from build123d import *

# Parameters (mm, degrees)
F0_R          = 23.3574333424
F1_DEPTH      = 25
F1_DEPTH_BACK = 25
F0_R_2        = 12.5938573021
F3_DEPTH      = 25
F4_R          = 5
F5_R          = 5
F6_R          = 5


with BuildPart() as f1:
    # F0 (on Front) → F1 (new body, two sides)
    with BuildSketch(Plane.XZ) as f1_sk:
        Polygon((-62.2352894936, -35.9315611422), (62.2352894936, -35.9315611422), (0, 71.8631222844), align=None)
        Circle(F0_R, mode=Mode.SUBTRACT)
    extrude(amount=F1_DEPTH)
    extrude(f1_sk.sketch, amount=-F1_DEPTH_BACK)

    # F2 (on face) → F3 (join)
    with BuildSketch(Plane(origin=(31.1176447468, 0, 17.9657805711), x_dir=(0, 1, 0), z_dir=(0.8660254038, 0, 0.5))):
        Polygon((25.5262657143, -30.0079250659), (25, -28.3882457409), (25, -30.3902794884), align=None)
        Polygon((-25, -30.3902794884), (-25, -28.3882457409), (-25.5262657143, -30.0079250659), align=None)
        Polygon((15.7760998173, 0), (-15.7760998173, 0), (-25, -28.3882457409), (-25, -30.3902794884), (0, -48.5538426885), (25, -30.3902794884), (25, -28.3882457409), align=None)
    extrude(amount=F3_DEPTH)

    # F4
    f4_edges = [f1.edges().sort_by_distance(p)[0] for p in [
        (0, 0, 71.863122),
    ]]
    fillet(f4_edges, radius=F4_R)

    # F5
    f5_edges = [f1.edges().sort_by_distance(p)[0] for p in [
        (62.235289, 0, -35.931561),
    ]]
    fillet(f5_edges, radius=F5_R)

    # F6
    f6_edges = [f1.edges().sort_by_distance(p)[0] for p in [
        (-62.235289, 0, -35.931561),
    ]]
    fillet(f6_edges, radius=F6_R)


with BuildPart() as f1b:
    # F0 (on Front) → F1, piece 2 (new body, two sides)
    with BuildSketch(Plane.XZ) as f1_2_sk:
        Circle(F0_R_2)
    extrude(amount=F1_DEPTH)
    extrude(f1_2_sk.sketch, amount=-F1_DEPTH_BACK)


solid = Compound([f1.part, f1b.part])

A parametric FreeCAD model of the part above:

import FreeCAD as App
import Part
import Sketcher
from FreeCAD import Vector
Q = App.Units.Quantity


def edges_at(feature, points):
    """Names of the edges that pass closest to the given points."""
    edges = feature.Shape.Edges
    near = lambda p: min(range(len(edges)), key=lambda i: edges[i].distToShape(Part.Vertex(*p))[0])
    return sorted({f"Edge{near(p) + 1}" for p in points})


def add_polygon(sketch, points):
    """Adds a closed chain of lines whose ends are joined by coincident constraints."""
    first, n = sketch.GeometryCount, len(points)
    for a, b in zip(points, points[1:] + points[:1]):
        sketch.addGeometry(Part.LineSegment(App.Vector(*a, 0), App.Vector(*b, 0)), False)
    for i in range(n):
        sketch.addConstraint(Sketcher.Constraint("Coincident", first + i, 2, first + (i + 1) % n, 1))

doc = App.newDocument("Part")
body = doc.addObject("PartDesign::Body", "Body")

sketch1 = doc.addObject("Sketcher::SketchObject", "Sketch")
body.addObject(sketch1)
sketch1.AttachmentSupport = (doc.XZ_Plane, [""])
sketch1.MapMode = "FlatFace"
add_polygon(sketch1, [(-62, -36), (62, -36), (0, 72)])
sketch1.addGeometry(Part.Circle(Vector(0, 0, 0), Vector(0, 0, 1), 23), False)
sketch1.addConstraint(Sketcher.Constraint("Horizontal", 0))
sketch1.addConstraint(Sketcher.Constraint("Coincident", 3, 3, -1, 1))
sketch1.addConstraint(Sketcher.Constraint("PointOnObject", 1, 2, -2))
sketch1.addConstraint(Sketcher.Constraint("Equal", 1, 2))
sketch1.addConstraint(Sketcher.Constraint("Angle", 1, Q("120 deg")))
sketch1.addConstraint(Sketcher.Constraint("Diameter", 3, Q("46.714867 mm")))
sketch1.addConstraint(Sketcher.Constraint("DistanceX", 0, 1, 0, 2, Q("124.470579 mm")))
sketch1.addConstraint(Sketcher.Constraint("DistanceY", 0, 2, -1, 1, Q("35.931561 mm")))
pad1 = doc.addObject("PartDesign::Pad", "Pad")
body.addObject(pad1)
pad1.Profile = sketch1
pad1.Type = "TwoLengths"
pad1.Length = 25
pad1.Length2 = 25

sketch2 = doc.addObject("Sketcher::SketchObject", "Sketch001")
body.addObject(sketch2)
sketch2.Placement = App.Placement(Vector(31.117645, 0, 17.965781), App.Rotation(Vector(0, 1, 0), Vector(-0.5, 0, 0.866025404), Vector(0.866025404, 0, 0.5), "ZXY"))
add_polygon(sketch2, [(25.5, -30), (25, -28.4), (15.8, 0), (-15.8, 0), (-25, -28.4), (-25.5, -30), (-25, -30.4), (0, -48.6), (25, -30.4)])
sketch2.addConstraint(Sketcher.Constraint("Horizontal", 2))
sketch2.addConstraint(Sketcher.Constraint("Symmetric", 1, 2, 2, 2, -1, 1))
sketch2.addConstraint(Sketcher.Constraint("Symmetric", 0, 2, 3, 2, -2))
sketch2.addConstraint(Sketcher.Constraint("Symmetric", 5, 2, 7, 2, -2))
sketch2.addConstraint(Sketcher.Constraint("Symmetric", 4, 2, 8, 2, -2))
sketch2.addConstraint(Sketcher.Constraint("PointOnObject", 6, 2, -2))
sketch2.addConstraint(Sketcher.Constraint("Parallel", 0, 1))
sketch2.addConstraint(Sketcher.Constraint("Parallel", 5, 6))
sketch2.addConstraint(Sketcher.Constraint("Vertical", 3, 2, 5, 2))
sketch2.addConstraint(Sketcher.Constraint("Angle", 0, Q("108 deg")))
sketch2.addConstraint(Sketcher.Constraint("Angle", 5, Q("-36 deg")))
sketch2.addConstraint(Sketcher.Constraint("DistanceX", -1, 1, 0, 2, Q("25 mm")))
sketch2.addConstraint(Sketcher.Constraint("DistanceX", 2, 2, 2, 1, Q("31.5522 mm")))
sketch2.addConstraint(Sketcher.Constraint("Distance", 5, Q("0.6505 mm")))
pad2 = doc.addObject("PartDesign::Pad", "Pad001")
body.addObject(pad2)
pad2.Profile = sketch2
pad2.Length = 25
doc.recompute()

fillet = doc.addObject("PartDesign::Fillet", "Fillet")
body.addObject(fillet)
fillet.Base = (pad2, edges_at(pad2, [(0, 0, 71.863)]))
fillet.Radius = 5
doc.recompute()

fillet2 = doc.addObject("PartDesign::Fillet", "Fillet001")
body.addObject(fillet2)
fillet2.Base = (fillet, edges_at(fillet, [(62.235, 0, -35.932)]))
fillet2.Radius = 5
doc.recompute()

fillet3 = doc.addObject("PartDesign::Fillet", "Fillet002")
body.addObject(fillet3)
fillet3.Base = (fillet2, edges_at(fillet2, [(-62.235, 0, -35.932)]))
fillet3.Radius = 5
body2 = doc.addObject("PartDesign::Body", "Body001")

sketch3 = doc.addObject("Sketcher::SketchObject", "Sketch002")
body2.addObject(sketch3)
sketch3.AttachmentSupport = (doc.getObject("XZ_Plane001"), [""])
sketch3.MapMode = "FlatFace"
sketch3.addGeometry(Part.Circle(Vector(0, 0, 0), Vector(0, 0, 1), 13), False)
sketch3.addConstraint(Sketcher.Constraint("Coincident", 0, 3, -1, 1))
sketch3.addConstraint(Sketcher.Constraint("Diameter", 0, Q("25.187715 mm")))
pad3 = doc.addObject("PartDesign::Pad", "Pad002")
body2.addObject(pad3)
pad3.Profile = sketch3
pad3.Type = "TwoLengths"
pad3.Length = 25
pad3.Length2 = 25

doc.recompute()
